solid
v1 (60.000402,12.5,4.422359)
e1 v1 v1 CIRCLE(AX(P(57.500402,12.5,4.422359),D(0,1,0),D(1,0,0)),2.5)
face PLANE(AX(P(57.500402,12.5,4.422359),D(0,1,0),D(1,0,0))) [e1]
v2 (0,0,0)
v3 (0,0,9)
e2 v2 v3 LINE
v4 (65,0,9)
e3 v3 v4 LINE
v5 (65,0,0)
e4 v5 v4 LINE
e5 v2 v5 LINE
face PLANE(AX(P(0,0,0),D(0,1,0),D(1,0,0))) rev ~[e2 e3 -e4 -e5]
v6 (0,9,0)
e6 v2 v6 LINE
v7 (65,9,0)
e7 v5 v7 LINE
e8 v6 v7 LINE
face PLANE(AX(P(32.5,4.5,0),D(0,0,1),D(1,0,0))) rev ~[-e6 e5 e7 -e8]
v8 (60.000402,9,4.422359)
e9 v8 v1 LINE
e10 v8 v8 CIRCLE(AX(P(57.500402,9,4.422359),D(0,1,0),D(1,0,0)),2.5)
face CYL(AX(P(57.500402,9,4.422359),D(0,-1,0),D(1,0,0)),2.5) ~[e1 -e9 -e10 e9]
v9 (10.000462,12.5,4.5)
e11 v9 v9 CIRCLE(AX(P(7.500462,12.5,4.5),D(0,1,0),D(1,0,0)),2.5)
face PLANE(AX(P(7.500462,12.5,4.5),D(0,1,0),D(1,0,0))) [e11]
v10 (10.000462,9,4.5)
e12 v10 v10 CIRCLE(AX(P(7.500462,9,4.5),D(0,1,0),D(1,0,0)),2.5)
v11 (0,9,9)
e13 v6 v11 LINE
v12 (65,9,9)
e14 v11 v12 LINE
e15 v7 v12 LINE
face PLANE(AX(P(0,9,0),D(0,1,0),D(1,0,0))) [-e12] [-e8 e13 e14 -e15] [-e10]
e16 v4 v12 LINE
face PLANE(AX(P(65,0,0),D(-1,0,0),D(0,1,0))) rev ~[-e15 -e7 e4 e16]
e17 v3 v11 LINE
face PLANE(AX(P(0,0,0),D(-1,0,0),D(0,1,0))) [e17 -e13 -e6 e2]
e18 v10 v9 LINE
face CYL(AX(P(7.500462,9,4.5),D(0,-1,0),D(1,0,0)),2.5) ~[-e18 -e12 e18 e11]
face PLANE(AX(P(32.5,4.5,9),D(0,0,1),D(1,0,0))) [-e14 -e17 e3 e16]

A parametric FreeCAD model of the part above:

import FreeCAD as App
import Part
import Sketcher
from FreeCAD import Vector
Q = App.Units.Quantity

doc = App.newDocument("Part")
body = doc.addObject("PartDesign::Body", "Body")

sketch1 = body.newObject("Sketcher::SketchObject", "Sketch")
sketch1.AttachmentSupport = (doc.getObject("XY_Plane"), [""])
sketch1.MapMode = "FlatFace"
sketch1.addGeometry(Part.LineSegment(Vector(0, 9, 0), Vector(0, 0, 0)), False)
sketch1.addGeometry(Part.LineSegment(Vector(0, 0, 0), Vector(65, 0, 0)), False)
sketch1.addGeometry(Part.LineSegment(Vector(65, 0, 0), Vector(65, 9, 0)), False)
sketch1.addGeometry(Part.LineSegment(Vector(65, 9, 0), Vector(0, 9, 0)), False)
sketch1.addConstraint(Sketcher.Constraint("Coincident", 0, 2, 1, 1))
sketch1.addConstraint(Sketcher.Constraint("Coincident", 1, 2, 2, 1))
sketch1.addConstraint(Sketcher.Constraint("Coincident", 2, 2, 3, 1))
sketch1.addConstraint(Sketcher.Constraint("Coincident", 3, 2, 0, 1))
sketch1.addConstraint(Sketcher.Constraint("Vertical", 0))
sketch1.addConstraint(Sketcher.Constraint("Horizontal", 1))
sketch1.addConstraint(Sketcher.Constraint("Vertical", 2))
sketch1.addConstraint(Sketcher.Constraint("Horizontal", 3))
sketch1.addConstraint(Sketcher.Constraint("Coincident", 0, 2, -1, 1))
sketch1.addConstraint(Sketcher.Constraint("DistanceX", 1, 1, 1, 2, Q("65 mm")))
sketch1.addConstraint(Sketcher.Constraint("DistanceY", 0, 2, 0, 1, Q("9 mm")))
pad1 = body.newObject("PartDesign::Pad", "Pad")
pad1.Profile = sketch1
pad1.Length = 9

sketch2 = body.newObject("Sketcher::SketchObject", "Sketch001")
sketch2.AttachmentSupport = (doc.getObject("XZ_Plane"), [""])
sketch2.MapMode = "FlatFace"
sketch2.AttachmentOffset = App.Placement(Vector(0, 0, -9), App.Rotation())
sketch2.addGeometry(Part.Circle(Vector(7.5, 4.5, 0), Vector(0, 0, 1), 2.5), False)
sketch2.addGeometry(Part.Circle(Vector(57.5, 4.4, 0), Vector(0, 0, 1), 2.5), False)
sketch2.addConstraint(Sketcher.Constraint("Equal", 0, 1))
sketch2.addConstraint(Sketcher.Constraint("Diameter", 0, Q("5 mm")))
sketch2.addConstraint(Sketcher.Constraint("DistanceY", -1, 1, 0, 3, Q("4.5 mm")))
sketch2.addConstraint(Sketcher.Constraint("DistanceX", -1, 1, 1, 3, Q("57.500402 mm")))
sketch2.addConstraint(Sketcher.Constraint("DistanceY", -1, 1, 1, 3, Q("4.422359 mm")))
sketch2.addConstraint(Sketcher.Constraint("DistanceX", 0, 3, 1, 3, Q("49.99994 mm")))
pad2 = body.newObject("PartDesign::Pad", "Pad001")
pad2.Profile = sketch2
pad2.Length = 3.5
pad2.Reversed = True

doc.recompute()
